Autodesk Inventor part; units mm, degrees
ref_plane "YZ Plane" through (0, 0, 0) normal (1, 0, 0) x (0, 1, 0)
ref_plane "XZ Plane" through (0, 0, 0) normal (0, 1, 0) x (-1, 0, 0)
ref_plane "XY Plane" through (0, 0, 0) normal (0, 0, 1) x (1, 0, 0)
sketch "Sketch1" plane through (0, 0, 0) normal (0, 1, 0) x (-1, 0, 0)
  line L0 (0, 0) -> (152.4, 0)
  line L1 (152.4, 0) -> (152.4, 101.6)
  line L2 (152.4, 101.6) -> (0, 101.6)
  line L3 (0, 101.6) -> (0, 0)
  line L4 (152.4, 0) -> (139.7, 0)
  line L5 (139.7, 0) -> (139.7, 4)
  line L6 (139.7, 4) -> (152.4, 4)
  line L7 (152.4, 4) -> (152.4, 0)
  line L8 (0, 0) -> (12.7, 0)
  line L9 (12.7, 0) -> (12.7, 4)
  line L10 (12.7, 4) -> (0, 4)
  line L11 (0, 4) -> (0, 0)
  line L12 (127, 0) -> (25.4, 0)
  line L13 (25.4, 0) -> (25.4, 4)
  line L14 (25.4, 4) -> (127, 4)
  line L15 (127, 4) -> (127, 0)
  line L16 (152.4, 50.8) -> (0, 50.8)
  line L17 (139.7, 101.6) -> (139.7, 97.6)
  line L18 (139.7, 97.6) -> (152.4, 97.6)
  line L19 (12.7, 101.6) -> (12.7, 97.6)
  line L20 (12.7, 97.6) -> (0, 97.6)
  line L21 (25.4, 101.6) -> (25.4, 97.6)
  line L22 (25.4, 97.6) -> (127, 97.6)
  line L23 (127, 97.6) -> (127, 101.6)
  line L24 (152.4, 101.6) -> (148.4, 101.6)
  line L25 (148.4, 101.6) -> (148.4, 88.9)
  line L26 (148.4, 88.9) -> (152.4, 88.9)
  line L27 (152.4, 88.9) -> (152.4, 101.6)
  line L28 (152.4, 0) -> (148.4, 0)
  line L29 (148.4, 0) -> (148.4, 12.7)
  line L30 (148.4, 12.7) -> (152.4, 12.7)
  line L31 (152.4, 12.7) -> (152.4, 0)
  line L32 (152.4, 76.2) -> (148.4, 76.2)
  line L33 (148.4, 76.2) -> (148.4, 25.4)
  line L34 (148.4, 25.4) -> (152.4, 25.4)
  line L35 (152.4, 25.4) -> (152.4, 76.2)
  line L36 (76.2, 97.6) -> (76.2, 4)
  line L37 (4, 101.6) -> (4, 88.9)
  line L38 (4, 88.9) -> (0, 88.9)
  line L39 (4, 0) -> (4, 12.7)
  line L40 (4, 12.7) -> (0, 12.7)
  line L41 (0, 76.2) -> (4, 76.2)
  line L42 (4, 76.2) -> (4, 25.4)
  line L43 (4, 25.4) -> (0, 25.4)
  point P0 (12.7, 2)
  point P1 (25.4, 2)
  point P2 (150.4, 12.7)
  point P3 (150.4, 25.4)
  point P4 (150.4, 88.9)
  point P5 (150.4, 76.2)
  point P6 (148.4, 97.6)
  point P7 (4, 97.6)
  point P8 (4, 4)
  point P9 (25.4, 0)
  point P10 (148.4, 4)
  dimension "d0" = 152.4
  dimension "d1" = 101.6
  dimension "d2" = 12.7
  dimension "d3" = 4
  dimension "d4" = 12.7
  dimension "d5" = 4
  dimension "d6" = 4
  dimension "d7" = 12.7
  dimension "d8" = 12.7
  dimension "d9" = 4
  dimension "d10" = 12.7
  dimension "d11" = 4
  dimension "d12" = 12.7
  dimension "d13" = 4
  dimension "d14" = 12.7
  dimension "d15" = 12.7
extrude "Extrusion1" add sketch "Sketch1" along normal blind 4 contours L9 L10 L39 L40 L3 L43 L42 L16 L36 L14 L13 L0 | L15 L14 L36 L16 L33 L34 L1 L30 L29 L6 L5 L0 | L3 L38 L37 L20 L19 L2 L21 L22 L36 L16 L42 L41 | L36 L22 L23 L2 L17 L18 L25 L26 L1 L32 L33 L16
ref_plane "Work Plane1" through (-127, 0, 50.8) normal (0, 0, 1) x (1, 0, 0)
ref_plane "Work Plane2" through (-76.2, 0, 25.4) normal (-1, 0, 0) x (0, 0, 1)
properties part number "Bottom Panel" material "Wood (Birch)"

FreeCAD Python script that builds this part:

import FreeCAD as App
import Part
import Sketcher
Q = App.Units.Quantity


def add_polygon(sketch, points):
    """Adds a closed chain of lines whose ends are joined by coincident constraints."""
    first, n = sketch.GeometryCount, len(points)
    for a, b in zip(points, points[1:] + points[:1]):
        sketch.addGeometry(Part.LineSegment(App.Vector(*a, 0), App.Vector(*b, 0)), False)
    for i in range(n):
        sketch.addConstraint(Sketcher.Constraint("Coincident", first + i, 2, first + (i + 1) % n, 1))

doc = App.newDocument("Part")
body = doc.addObject("PartDesign::Body", "Body")

sketch1 = body.newObject("Sketcher::SketchObject", "Sketch")
sketch1.AttachmentSupport = (doc.getObject("XZ_Plane"), [""])
sketch1.MapMode = "FlatFace"
add_polygon(sketch1, [(-12.7, 4), (-12.7, 0), (-25.4, 0), (-25.4, 4), (-127, 4), (-127, 0), (-139.7, 0), (-139.7, 4), (-148.4, 4), (-148.4, 12.7), (-152.4, 12.7), (-152.4, 25.4), (-148.4, 25.4), (-148.4, 76.2), (-152.4, 76.2), (-152.4, 88.9), (-148.4, 88.9), (-148.4, 97.6), (-139.7, 97.6), (-139.7, 101.6), (-127, 101.6), (-127, 97.6), (-25.4, 97.6), (-25.4, 101.6), (-12.7, 101.6), (-12.7, 97.6), (-4, 97.6), (-4, 88.9), (0, 88.9), (0, 76.2), (-4, 76.2), (-4, 25.4), (0, 25.4), (0, 12.7), (-4, 12.7), (-4, 4)])
sketch1.addConstraint([
    Sketcher.Constraint("Vertical", 0),
    Sketcher.Constraint("Horizontal", 1),
    Sketcher.Constraint("Vertical", 2),
    Sketcher.Constraint("Horizontal", 3),
    Sketcher.Constraint("Vertical", 4),
    Sketcher.Constraint("Horizontal", 5),
    Sketcher.Constraint("Vertical", 6),
    Sketcher.Constraint("Horizontal", 7),
    Sketcher.Constraint("Vertical", 8),
    Sketcher.Constraint("Horizontal", 9),
    Sketcher.Constraint("Vertical", 10),
    Sketcher.Constraint("Horizontal", 11),
    Sketcher.Constraint("Vertical", 12),
    Sketcher.Constraint("Horizontal", 13),
    Sketcher.Constraint("Vertical", 14),
    Sketcher.Constraint("Horizontal", 15),
    Sketcher.Constraint("Vertical", 16),
    Sketcher.Constraint("Horizontal", 17),
    Sketcher.Constraint("Vertical", 18),
    Sketcher.Constraint("Horizontal", 19),
    Sketcher.Constraint("Vertical", 20),
    Sketcher.Constraint("Horizontal", 21),
    Sketcher.Constraint("Vertical", 22),
    Sketcher.Constraint("Horizontal", 23),
    Sketcher.Constraint("Vertical", 24),
    Sketcher.Constraint("Horizontal", 25),
    Sketcher.Constraint("Vertical", 26),
    Sketcher.Constraint("Horizontal", 27),
    Sketcher.Constraint("Vertical", 28),
    Sketcher.Constraint("Horizontal", 29),
    Sketcher.Constraint("Vertical", 30),
    Sketcher.Constraint("Horizontal", 31),
    Sketcher.Constraint("Vertical", 32),
    Sketcher.Constraint("Horizontal", 33),
    Sketcher.Constraint("Vertical", 34),
    Sketcher.Constraint("Horizontal", 35),
    Sketcher.Constraint("PointOnObject", 0, 2, -1),
    Sketcher.Constraint("PointOnObject", 4, 2, -1),
    Sketcher.Constraint("PointOnObject", 27, 2, -2),
    Sketcher.Constraint("PointOnObject", 31, 2, -2),
    Sketcher.Constraint("Horizontal", 3, 2, 6, 2),
    Sketcher.Constraint("Horizontal", 17, 2, 20, 2),
    Sketcher.Constraint("Horizontal", 19, 2, 22, 2),
    Sketcher.Constraint("Horizontal", 21, 2, 24, 2),
    Sketcher.Constraint("Horizontal", 15, 2, 26, 2),
    Sketcher.Constraint("Horizontal", 13, 2, 28, 2),
    Sketcher.Constraint("Horizontal", 11, 2, 30, 2),
    Sketcher.Constraint("Horizontal", 9, 2, 32, 2),
    Sketcher.Constraint("Horizontal", 7, 2, 34, 2),
    Sketcher.Constraint("Vertical", 8, 2, 11, 2),
    Sketcher.Constraint("Vertical", 10, 2, 13, 2),
    Sketcher.Constraint("Vertical", 12, 2, 15, 2),
    Sketcher.Constraint("Vertical", 6, 2, 17, 2),
    Sketcher.Constraint("Vertical", 4, 2, 19, 2),
    Sketcher.Constraint("Vertical", 2, 2, 21, 2),
    Sketcher.Constraint("Vertical", 0, 2, 23, 2),
    Sketcher.Constraint("Vertical", 26, 2, 29, 2),
    Sketcher.Constraint("Vertical", 30, 2, 33, 2),
    Sketcher.Constraint("Equal", 1, 5),
    Sketcher.Constraint("Equal", 17, 25),
    Sketcher.Constraint("Equal", 15, 27),
    Sketcher.Constraint("Equal", 33, 0),
    Sketcher.Constraint("Equal", 35, 8),
    Sketcher.Constraint("Equal", 23, 10),
    Sketcher.Constraint("Equal", 10, 14),
    Sketcher.Constraint("Equal", 8, 16),
    Sketcher.Constraint("Equal", 6, 18),
    Sketcher.Constraint("DistanceX", 3, 2, 3, 1, Q("4 in")),
    Sketcher.Constraint("DistanceX", 1, 2, 1, 1, Q("0.5 in")),
    Sketcher.Constraint("DistanceX", 9, 2, -1, 1, Q("6 in")),
    Sketcher.Constraint("DistanceY", -1, 1, 18, 2, Q("4 in")),
    Sketcher.Constraint("DistanceX", 9, 2, 9, 1, Q("4 mm")),
])
pad1 = body.newObject("PartDesign::Pad", "Pad")
pad1.Profile = sketch1
pad1.Length = 4
pad1.Reversed = True

doc.recompute()
